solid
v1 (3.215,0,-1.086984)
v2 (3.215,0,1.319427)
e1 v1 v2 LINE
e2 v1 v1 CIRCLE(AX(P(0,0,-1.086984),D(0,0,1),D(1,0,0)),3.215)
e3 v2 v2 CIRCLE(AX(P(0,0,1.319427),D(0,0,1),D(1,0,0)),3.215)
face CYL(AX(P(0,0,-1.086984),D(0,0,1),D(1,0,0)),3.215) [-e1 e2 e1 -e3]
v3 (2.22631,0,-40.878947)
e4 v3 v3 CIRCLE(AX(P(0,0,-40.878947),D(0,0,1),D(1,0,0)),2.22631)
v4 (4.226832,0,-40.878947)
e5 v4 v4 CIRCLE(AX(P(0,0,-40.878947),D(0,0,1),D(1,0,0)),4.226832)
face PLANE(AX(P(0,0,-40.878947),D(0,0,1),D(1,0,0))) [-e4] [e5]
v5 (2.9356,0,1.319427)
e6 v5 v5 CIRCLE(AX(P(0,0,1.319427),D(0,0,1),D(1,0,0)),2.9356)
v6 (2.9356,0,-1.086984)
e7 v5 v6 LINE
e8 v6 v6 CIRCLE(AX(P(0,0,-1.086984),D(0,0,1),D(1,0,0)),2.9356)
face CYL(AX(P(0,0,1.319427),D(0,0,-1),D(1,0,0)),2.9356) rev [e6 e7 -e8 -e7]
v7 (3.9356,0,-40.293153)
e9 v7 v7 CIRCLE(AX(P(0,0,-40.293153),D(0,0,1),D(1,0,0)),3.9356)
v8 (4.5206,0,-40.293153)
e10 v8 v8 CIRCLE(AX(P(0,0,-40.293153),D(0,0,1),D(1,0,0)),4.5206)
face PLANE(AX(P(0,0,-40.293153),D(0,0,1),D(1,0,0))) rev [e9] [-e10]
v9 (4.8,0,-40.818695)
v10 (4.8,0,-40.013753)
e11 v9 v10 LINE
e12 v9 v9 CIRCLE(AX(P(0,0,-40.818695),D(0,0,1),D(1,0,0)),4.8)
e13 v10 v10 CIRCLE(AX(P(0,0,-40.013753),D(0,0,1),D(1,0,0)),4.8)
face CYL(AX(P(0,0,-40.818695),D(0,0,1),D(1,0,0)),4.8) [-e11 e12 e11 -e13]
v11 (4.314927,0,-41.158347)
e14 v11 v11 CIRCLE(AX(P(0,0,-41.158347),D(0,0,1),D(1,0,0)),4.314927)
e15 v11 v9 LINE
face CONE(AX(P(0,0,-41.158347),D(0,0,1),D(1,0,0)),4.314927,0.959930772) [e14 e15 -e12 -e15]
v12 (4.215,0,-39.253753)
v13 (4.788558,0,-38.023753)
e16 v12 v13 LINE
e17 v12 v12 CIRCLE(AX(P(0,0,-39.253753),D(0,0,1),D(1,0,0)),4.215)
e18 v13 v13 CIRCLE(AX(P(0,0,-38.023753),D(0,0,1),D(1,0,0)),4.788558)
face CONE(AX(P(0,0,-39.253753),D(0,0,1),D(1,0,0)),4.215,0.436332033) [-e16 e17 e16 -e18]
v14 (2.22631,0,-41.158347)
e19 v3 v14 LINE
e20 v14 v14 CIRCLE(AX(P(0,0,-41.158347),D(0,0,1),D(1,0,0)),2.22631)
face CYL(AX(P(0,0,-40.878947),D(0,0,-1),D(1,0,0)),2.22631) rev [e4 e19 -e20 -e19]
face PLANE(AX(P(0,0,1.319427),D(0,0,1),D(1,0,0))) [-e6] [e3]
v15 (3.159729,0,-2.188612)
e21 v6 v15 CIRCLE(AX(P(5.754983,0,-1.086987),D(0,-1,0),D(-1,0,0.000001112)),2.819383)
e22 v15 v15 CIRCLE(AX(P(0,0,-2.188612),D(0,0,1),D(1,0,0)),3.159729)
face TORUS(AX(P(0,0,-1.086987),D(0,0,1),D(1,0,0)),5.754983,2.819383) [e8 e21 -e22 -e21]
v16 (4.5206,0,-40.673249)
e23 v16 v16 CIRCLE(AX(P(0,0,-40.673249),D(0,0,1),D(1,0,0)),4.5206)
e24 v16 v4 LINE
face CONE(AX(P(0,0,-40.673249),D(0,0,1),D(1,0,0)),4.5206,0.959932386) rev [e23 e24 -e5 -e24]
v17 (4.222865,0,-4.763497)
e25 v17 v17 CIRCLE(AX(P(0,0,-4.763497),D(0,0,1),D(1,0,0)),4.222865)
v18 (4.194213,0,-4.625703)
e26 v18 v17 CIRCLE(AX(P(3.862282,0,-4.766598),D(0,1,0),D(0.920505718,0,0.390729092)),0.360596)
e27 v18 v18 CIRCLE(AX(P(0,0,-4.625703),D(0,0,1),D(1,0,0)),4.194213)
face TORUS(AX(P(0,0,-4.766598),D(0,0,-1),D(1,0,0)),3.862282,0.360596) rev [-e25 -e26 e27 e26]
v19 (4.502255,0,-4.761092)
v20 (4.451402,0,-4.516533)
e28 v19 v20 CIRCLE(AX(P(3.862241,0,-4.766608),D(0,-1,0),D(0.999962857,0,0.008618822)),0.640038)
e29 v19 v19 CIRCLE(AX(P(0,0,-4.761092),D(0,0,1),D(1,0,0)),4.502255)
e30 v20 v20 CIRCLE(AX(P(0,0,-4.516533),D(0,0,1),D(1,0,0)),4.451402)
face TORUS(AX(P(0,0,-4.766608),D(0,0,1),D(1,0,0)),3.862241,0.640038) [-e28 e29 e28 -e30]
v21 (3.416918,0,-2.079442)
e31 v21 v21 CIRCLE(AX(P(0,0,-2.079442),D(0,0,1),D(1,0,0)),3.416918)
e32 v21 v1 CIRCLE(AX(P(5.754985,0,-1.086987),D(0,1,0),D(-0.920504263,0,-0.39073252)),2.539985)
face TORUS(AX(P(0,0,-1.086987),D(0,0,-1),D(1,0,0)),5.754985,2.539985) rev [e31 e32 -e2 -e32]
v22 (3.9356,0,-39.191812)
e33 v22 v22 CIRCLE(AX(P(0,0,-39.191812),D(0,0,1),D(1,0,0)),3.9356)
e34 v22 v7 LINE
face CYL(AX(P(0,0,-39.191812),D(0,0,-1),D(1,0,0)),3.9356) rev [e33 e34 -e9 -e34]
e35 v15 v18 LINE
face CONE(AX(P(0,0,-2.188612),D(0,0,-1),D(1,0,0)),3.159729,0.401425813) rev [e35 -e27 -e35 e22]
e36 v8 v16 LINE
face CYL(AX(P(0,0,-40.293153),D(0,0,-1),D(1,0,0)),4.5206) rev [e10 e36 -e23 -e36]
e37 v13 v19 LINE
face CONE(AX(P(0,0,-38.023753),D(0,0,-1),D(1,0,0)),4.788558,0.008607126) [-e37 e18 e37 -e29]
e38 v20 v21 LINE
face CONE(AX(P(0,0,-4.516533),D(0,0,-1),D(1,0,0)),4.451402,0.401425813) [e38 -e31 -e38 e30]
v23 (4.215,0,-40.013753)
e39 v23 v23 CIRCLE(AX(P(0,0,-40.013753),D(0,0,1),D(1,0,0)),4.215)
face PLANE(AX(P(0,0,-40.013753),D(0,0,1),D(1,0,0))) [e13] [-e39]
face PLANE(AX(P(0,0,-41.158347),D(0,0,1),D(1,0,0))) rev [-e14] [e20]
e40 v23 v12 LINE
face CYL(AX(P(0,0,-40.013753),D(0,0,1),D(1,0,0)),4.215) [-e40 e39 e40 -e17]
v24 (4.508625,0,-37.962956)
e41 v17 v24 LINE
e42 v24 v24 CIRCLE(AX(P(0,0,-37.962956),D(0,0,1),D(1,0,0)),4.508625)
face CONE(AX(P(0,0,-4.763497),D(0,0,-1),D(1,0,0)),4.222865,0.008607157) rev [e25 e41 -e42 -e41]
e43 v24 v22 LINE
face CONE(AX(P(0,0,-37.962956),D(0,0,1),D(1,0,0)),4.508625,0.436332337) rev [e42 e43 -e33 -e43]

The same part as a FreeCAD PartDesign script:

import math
import FreeCAD as App
import Part
import Sketcher
Q = App.Units.Quantity

doc = App.newDocument("Part")
params = doc.addObject("Spreadsheet::Sheet", "Params")
for row, (alias, value) in enumerate([
    ("sketch1_width", "0.011 in"),
    ("revolution_angle", "360 deg"),
], start=1):
    params.set(f"A{row}", alias)
    params.set(f"B{row}", "=" + value)
    params.setAlias(f"B{row}", alias)

body = doc.addObject("PartDesign::Body", "Body")

sketch1 = doc.addObject("Sketcher::SketchObject", "Sketch")
body.addObject(sketch1)
sketch1.AttachmentSupport = (doc.XZ_Plane, [""])
sketch1.MapMode = "FlatFace"
sketch1.addGeometry(Part.LineSegment(App.Vector(2.23, -41.16, 0), App.Vector(4.31, -41.16, 0)), False)
sketch1.addGeometry(Part.LineSegment(App.Vector(4.31, -41.16, 0), App.Vector(4.8, -40.82, 0)), False)
sketch1.addGeometry(Part.LineSegment(App.Vector(4.8, -40.82, 0), App.Vector(4.8, -40.01, 0)), False)
sketch1.addGeometry(Part.LineSegment(App.Vector(4.8, -40.01, 0), App.Vector(4.21, -40.01, 0)), False)
sketch1.addGeometry(Part.LineSegment(App.Vector(4.21, -40.01, 0), App.Vector(4.21, -39.25, 0)), False)
sketch1.addGeometry(Part.LineSegment(App.Vector(4.21, -39.25, 0), App.Vector(4.79, -38.02, 0)), False)
sketch1.addGeometry(Part.LineSegment(App.Vector(4.79, -38.02, 0), App.Vector(4.5, -4.76, 0)), False)
sketch1.addGeometry(Part.ArcOfCircle(Part.Circle(App.Vector(3.86, -4.77, 0), App.Vector(0, 0, 1), 0.64), math.radians(0), math.radians(23)), False)
sketch1.addGeometry(Part.LineSegment(App.Vector(4.45, -4.52, 0), App.Vector(3.42, -2.08, 0)), False)
sketch1.addGeometry(Part.ArcOfCircle(Part.Circle(App.Vector(5.75, -1.09, 0), App.Vector(0, 0, 1), 2.54), math.radians(180), math.radians(203)), False)
sketch1.addGeometry(Part.LineSegment(App.Vector(3.21, -1.09, 0), App.Vector(3.21, 1.32, 0)), False)
sketch1.addGeometry(Part.LineSegment(App.Vector(3.21, 1.32, 0), App.Vector(2.94, 1.32, 0)), False)
sketch1.addGeometry(Part.LineSegment(App.Vector(2.94, 1.32, 0), App.Vector(2.94, -1.09, 0)), False)
sketch1.addGeometry(Part.ArcOfCircle(Part.Circle(App.Vector(5.75, -1.09, 0), App.Vector(0, 0, 1), 2.82), math.radians(180), math.radians(203)), False)
sketch1.addGeometry(Part.LineSegment(App.Vector(3.16, -2.19, 0), App.Vector(4.19, -4.63, 0)), False)
sketch1.addGeometry(Part.ArcOfCircle(Part.Circle(App.Vector(3.86, -4.77, 0), App.Vector(0, 0, 1), 0.36), math.radians(0), math.radians(23)), False)
sketch1.addGeometry(Part.LineSegment(App.Vector(4.22, -4.76, 0), App.Vector(4.51, -37.96, 0)), False)
sketch1.addGeometry(Part.LineSegment(App.Vector(4.51, -37.96, 0), App.Vector(3.94, -39.19, 0)), False)
sketch1.addGeometry(Part.LineSegment(App.Vector(3.94, -39.19, 0), App.Vector(3.94, -40.29, 0)), False)
sketch1.addGeometry(Part.LineSegment(App.Vector(3.94, -40.29, 0), App.Vector(4.52, -40.29, 0)), False)
sketch1.addGeometry(Part.LineSegment(App.Vector(4.52, -40.29, 0), App.Vector(4.52, -40.67, 0)), False)
sketch1.addGeometry(Part.LineSegment(App.Vector(4.52, -40.67, 0), App.Vector(4.23, -40.88, 0)), False)
sketch1.addGeometry(Part.LineSegment(App.Vector(4.23, -40.88, 0), App.Vector(2.23, -40.88, 0)), False)
sketch1.addGeometry(Part.LineSegment(App.Vector(2.23, -40.88, 0), App.Vector(2.23, -41.16, 0)), False)
sketch1.addConstraint(Sketcher.Constraint("Coincident", 0, 2, 1, 1))
sketch1.addConstraint(Sketcher.Constraint("Coincident", 1, 2, 2, 1))
sketch1.addConstraint(Sketcher.Constraint("Coincident", 2, 2, 3, 1))
sketch1.addConstraint(Sketcher.Constraint("Coincident", 3, 2, 4, 1))
sketch1.addConstraint(Sketcher.Constraint("Coincident", 4, 2, 5, 1))
sketch1.addConstraint(Sketcher.Constraint("Coincident", 5, 2, 6, 1))
sketch1.addConstraint(Sketcher.Constraint("Coincident", 6, 2, 7, 1))
sketch1.addConstraint(Sketcher.Constraint("Coincident", 7, 2, 8, 1))
sketch1.addConstraint(Sketcher.Constraint("Tangent", 8, 2, 9, 2))
sketch1.addConstraint(Sketcher.Constraint("Tangent", 9, 1, 10, 1))
sketch1.addConstraint(Sketcher.Constraint("Coincident", 10, 2, 11, 1))
sketch1.addConstraint(Sketcher.Constraint("Coincident", 11, 2, 12, 1))
sketch1.addConstraint(Sketcher.Constraint("Tangent", 12, 2, 13, 1))
sketch1.addConstraint(Sketcher.Constraint("Tangent", 13, 2, 14, 1))
sketch1.addConstraint(Sketcher.Constraint("Coincident", 14, 2, 15, 2))
sketch1.addConstraint(Sketcher.Constraint("Coincident", 15, 1, 16, 1))
sketch1.addConstraint(Sketcher.Constraint("Coincident", 16, 2, 17, 1))
sketch1.addConstraint(Sketcher.Constraint("Coincident", 17, 2, 18, 1))
sketch1.addConstraint(Sketcher.Constraint("Coincident", 18, 2, 19, 1))
sketch1.addConstraint(Sketcher.Constraint("Coincident", 19, 2, 20, 1))
sketch1.addConstraint(Sketcher.Constraint("Coincident", 20, 2, 21, 1))
sketch1.addConstraint(Sketcher.Constraint("Coincident", 21, 2, 22, 1))
sketch1.addConstraint(Sketcher.Constraint("Coincident", 22, 2, 23, 1))
sketch1.addConstraint(Sketcher.Constraint("Coincident", 23, 2, 0, 1))
sketch1.addConstraint(Sketcher.Constraint("Horizontal", 0))
sketch1.addConstraint(Sketcher.Constraint("Vertical", 2))
sketch1.addConstraint(Sketcher.Constraint("Horizontal", 3))
sketch1.addConstraint(Sketcher.Constraint("Vertical", 4))
sketch1.addConstraint(Sketcher.Constraint("Vertical", 10))
sketch1.addConstraint(Sketcher.Constraint("Horizontal", 11))
sketch1.addConstraint(Sketcher.Constraint("Vertical", 12))
sketch1.addConstraint(Sketcher.Constraint("Vertical", 18))
sketch1.addConstraint(Sketcher.Constraint("Horizontal", 19))
sketch1.addConstraint(Sketcher.Constraint("Vertical", 20))
sketch1.addConstraint(Sketcher.Constraint("Horizontal", 22))
sketch1.addConstraint(Sketcher.Constraint("Vertical", 23))
sketch1.addConstraint(Sketcher.Constraint("Coincident", 13, 3, 9, 3))
sketch1.addConstraint(Sketcher.Constraint("Parallel", 8, 14))
sketch1.addConstraint(Sketcher.Constraint("Parallel", 6, 16))
sketch1.addConstraint(Sketcher.Constraint("Parallel", 5, 17))
sketch1.addConstraint(Sketcher.Constraint("Parallel", 1, 21))
sketch1.addConstraint(Sketcher.Constraint("Equal", 3, 19))
sketch1.addConstraint(Sketcher.Constraint("Equal", 11, 23))
sketch1.addConstraint(Sketcher.Constraint("Equal", 8, 14))
sketch1.addConstraint(Sketcher.Constraint("Angle", 1, Q("35.000018 deg")))
sketch1.addConstraint(Sketcher.Constraint("Angle", 5, Q("65.000016 deg")))
sketch1.addConstraint(Sketcher.Constraint("Angle", 8, Q("113.000005 deg")))
sketch1.addConstraint(Sketcher.Constraint("DistanceX", 11, 2, 11, 1, Q("0.011 in")))
sketch1.addConstraint(Sketcher.Constraint("Radius", 7, 0.640038))
sketch1.addConstraint(Sketcher.Constraint("DistanceX", 17, 2, 4, 2, Q("0.011 in")))
sketch1.addConstraint(Sketcher.Constraint("DistanceY", 18, 2, 3, 2, Q("0.011 in")))
sketch1.addConstraint(Sketcher.Constraint("DistanceX", 3, 2, 3, 1, 0.585))
sketch1.addConstraint(Sketcher.Constraint("DistanceY", 4, 1, 4, 2, 0.76))
sketch1.addConstraint(Sketcher.Constraint("Radius", 9, 2.539985))
sketch1.addConstraint(Sketcher.Constraint("Radius", 15, 0.360596))
sketch1.addConstraint(Sketcher.Constraint("DistanceY", 2, 1, 2, 2, 0.804942))
sketch1.addConstraint(Sketcher.Constraint("DistanceY", 10, 1, 10, 2, 2.406411))
sketch1.addConstraint(Sketcher.Constraint("DistanceY", 18, 2, 18, 1, 1.101341))
sketch1.addConstraint(Sketcher.Constraint("DistanceY", 15, 3, -1, 1, 4.766598))
sketch1.addConstraint(Sketcher.Constraint("DistanceX", -1, 1, 1, 2, 4.8))
sketch1.addConstraint(Sketcher.Constraint("DistanceX", -1, 1, 9, 1, 3.215))
sketch1.addConstraint(Sketcher.Constraint("DistanceX", 15, 3, 13, 3, 1.892701))
sketch1.addConstraint(Sketcher.Constraint("DistanceY", 4, 2, 5, 2, 1.23))
sketch1.addConstraint(Sketcher.Constraint("DistanceY", 15, 3, 15, 1, 0.003101))
sketch1.addConstraint(Sketcher.Constraint("DistanceY", 0, 2, 20, 2, 0.485098))
sketch1.addConstraint(Sketcher.Constraint("Distance", 8, 2.647559))
sketch1.addConstraint(Sketcher.Constraint("Distance", 16, 33.200689))
sketch1.addConstraint(Sketcher.Constraint("DistanceX", 0, 1, 0, 2, 2.088617))
sketch1.addConstraint(Sketcher.Constraint("DistanceX", 22, 2, 22, 1, 2.000522))
sketch1.addConstraint(Sketcher.Constraint("DistanceX", -1, 1, 7, 3, 3.862241))
sketch1.addConstraint(Sketcher.Constraint("DistanceY", 6, 2, -1, 1, 4.761092))
sketch1.setExpression("Constraints[47]", "Params.sketch1_width")
revolution = doc.addObject("PartDesign::Revolution", "Revolution")
body.addObject(revolution)
revolution.Profile = sketch1
revolution.ReferenceAxis = (sketch1, ["V_Axis"])
revolution.setExpression("Angle", "Params.revolution_angle")

doc.recompute()
